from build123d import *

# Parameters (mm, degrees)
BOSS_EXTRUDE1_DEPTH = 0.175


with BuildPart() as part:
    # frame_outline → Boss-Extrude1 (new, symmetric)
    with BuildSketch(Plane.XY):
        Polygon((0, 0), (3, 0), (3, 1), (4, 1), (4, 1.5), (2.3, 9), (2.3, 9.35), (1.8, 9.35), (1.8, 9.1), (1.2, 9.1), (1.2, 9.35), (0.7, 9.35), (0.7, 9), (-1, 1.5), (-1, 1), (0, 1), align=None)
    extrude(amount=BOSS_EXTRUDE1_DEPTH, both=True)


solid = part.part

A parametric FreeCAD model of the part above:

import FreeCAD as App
import Part
import Sketcher

V = App.Vector
Q = App.Units.Quantity

doc = App.newDocument("Part")
body = doc.addObject("PartDesign::Body", "Body")

# Sketch on XY plane
sketch1 = body.newObject("Sketcher::SketchObject", "Sketch")
sketch1.AttachmentSupport = (doc.getObject("XY_Plane"), [""])
sketch1.MapMode = "FlatFace"
sketch1.addGeometry(Part.LineSegment(V(0, 0, 0), V(3, 0, 0)), False)
sketch1.addGeometry(Part.LineSegment(V(3, 0, 0), V(3, 1, 0)), False)
sketch1.addGeometry(Part.LineSegment(V(3, 1, 0), V(4, 1, 0)), False)
sketch1.addGeometry(Part.LineSegment(V(4, 1, 0), V(4, 1.5, 0)), False)
sketch1.addGeometry(Part.LineSegment(V(4, 1.5, 0), V(2.3, 9, 0)), False)
sketch1.addGeometry(Part.LineSegment(V(2.3, 9, 0), V(2.3, 9.35, 0)), False)
sketch1.addGeometry(Part.LineSegment(V(2.3, 9.35, 0), V(1.8, 9.35, 0)), False)
sketch1.addGeometry(Part.LineSegment(V(1.8, 9.35, 0), V(1.8, 9.1, 0)), False)
sketch1.addGeometry(Part.LineSegment(V(1.8, 9.1, 0), V(1.2, 9.1, 0)), False)
sketch1.addGeometry(Part.LineSegment(V(1.2, 9.1, 0), V(1.2, 9.35, 0)), False)
sketch1.addGeometry(Part.LineSegment(V(1.2, 9.35, 0), V(0.7, 9.35, 0)), False)
sketch1.addGeometry(Part.LineSegment(V(0.7, 9.35, 0), V(0.7, 9, 0)), False)
sketch1.addGeometry(Part.LineSegment(V(0.7, 9, 0), V(-1, 1.5, 0)), False)
sketch1.addGeometry(Part.LineSegment(V(-1, 1.5, 0), V(-1, 1, 0)), False)
sketch1.addGeometry(Part.LineSegment(V(-1, 1, 0), V(0, 1, 0)), False)
sketch1.addGeometry(Part.LineSegment(V(0, 1, 0), V(0, 0, 0)), False)
sketch1.addConstraint(Sketcher.Constraint("Coincident", 0, 2, 1, 1))
sketch1.addConstraint(Sketcher.Constraint("Coincident", 1, 2, 2, 1))
sketch1.addConstraint(Sketcher.Constraint("Coincident", 2, 2, 3, 1))
sketch1.addConstraint(Sketcher.Constraint("Coincident", 3, 2, 4, 1))
sketch1.addConstraint(Sketcher.Constraint("Coincident", 4, 2, 5, 1))
sketch1.addConstraint(Sketcher.Constraint("Coincident", 5, 2, 6, 1))
sketch1.addConstraint(Sketcher.Constraint("Coincident", 6, 2, 7, 1))
sketch1.addConstraint(Sketcher.Constraint("Coincident", 7, 2, 8, 1))
sketch1.addConstraint(Sketcher.Constraint("Coincident", 8, 2, 9, 1))
sketch1.addConstraint(Sketcher.Constraint("Coincident", 9, 2, 10, 1))
sketch1.addConstraint(Sketcher.Constraint("Coincident", 10, 2, 11, 1))
sketch1.addConstraint(Sketcher.Constraint("Coincident", 11, 2, 12, 1))
sketch1.addConstraint(Sketcher.Constraint("Coincident", 12, 2, 13, 1))
sketch1.addConstraint(Sketcher.Constraint("Coincident", 13, 2, 14, 1))
sketch1.addConstraint(Sketcher.Constraint("Coincident", 14, 2, 15, 1))
sketch1.addConstraint(Sketcher.Constraint("Coincident", 15, 2, 0, 1))
sketch1.addConstraint(Sketcher.Constraint("Horizontal", 0))
sketch1.addConstraint(Sketcher.Constraint("Vertical", 1))
sketch1.addConstraint(Sketcher.Constraint("Horizontal", 2))
sketch1.addConstraint(Sketcher.Constraint("Vertical", 3))
sketch1.addConstraint(Sketcher.Constraint("Vertical", 5))
sketch1.addConstraint(Sketcher.Constraint("Horizontal", 6))
sketch1.addConstraint(Sketcher.Constraint("Vertical", 7))
sketch1.addConstraint(Sketcher.Constraint("Horizontal", 8))
sketch1.addConstraint(Sketcher.Constraint("Vertical", 9))
sketch1.addConstraint(Sketcher.Constraint("Horizontal", 10))
sketch1.addConstraint(Sketcher.Constraint("Vertical", 11))
sketch1.addConstraint(Sketcher.Constraint("Vertical", 13))
sketch1.addConstraint(Sketcher.Constraint("Horizontal", 14))
sketch1.addConstraint(Sketcher.Constraint("Vertical", 15))
sketch1.addConstraint(Sketcher.Constraint("Coincident", 15, 2, -1, 1))
sketch1.addConstraint(Sketcher.Constraint("Horizontal", 6, 2, 9, 2))
sketch1.addConstraint(Sketcher.Constraint("Horizontal", 4, 2, 11, 2))
sketch1.addConstraint(Sketcher.Constraint("Horizontal", 3, 2, 12, 2))
sketch1.addConstraint(Sketcher.Constraint("Horizontal", 2, 2, 13, 2))
sketch1.addConstraint(Sketcher.Constraint("Equal", 6, 10))
sketch1.addConstraint(Sketcher.Constraint("Equal", 2, 14))
sketch1.addConstraint(Sketcher.Constraint("Equal", 14, 1))
sketch1.addConstraint(Sketcher.Constraint("Equal", 10, 3))
sketch1.addConstraint(Sketcher.Constraint("Equal", 4, 12))
sketch1.addConstraint(Sketcher.Constraint("DistanceX", 0, 1, 0, 2, Q("3 mm")))
sketch1.addConstraint(Sketcher.Constraint("DistanceX", 2, 1, 2, 2, Q("1 mm")))
sketch1.addConstraint(Sketcher.Constraint("DistanceX", 6, 2, 6, 1, Q("0.5 mm")))
sketch1.addConstraint(Sketcher.Constraint("DistanceX", 8, 2, 8, 1, Q("0.6 mm")))
sketch1.addConstraint(Sketcher.Constraint("DistanceY", -1, 1, 4, 2, Q("9 mm")))
sketch1.addConstraint(Sketcher.Constraint("DistanceY", 5, 1, 5, 2, Q("0.35 mm")))
sketch1.addConstraint(Sketcher.Constraint("DistanceY", 7, 2, 7, 1, Q("0.25 mm")))
pad1 = body.newObject("PartDesign::Pad", "Pad")
pad1.Profile = sketch1
pad1.Length = 0.35
pad1.Midplane = True

doc.recompute()
